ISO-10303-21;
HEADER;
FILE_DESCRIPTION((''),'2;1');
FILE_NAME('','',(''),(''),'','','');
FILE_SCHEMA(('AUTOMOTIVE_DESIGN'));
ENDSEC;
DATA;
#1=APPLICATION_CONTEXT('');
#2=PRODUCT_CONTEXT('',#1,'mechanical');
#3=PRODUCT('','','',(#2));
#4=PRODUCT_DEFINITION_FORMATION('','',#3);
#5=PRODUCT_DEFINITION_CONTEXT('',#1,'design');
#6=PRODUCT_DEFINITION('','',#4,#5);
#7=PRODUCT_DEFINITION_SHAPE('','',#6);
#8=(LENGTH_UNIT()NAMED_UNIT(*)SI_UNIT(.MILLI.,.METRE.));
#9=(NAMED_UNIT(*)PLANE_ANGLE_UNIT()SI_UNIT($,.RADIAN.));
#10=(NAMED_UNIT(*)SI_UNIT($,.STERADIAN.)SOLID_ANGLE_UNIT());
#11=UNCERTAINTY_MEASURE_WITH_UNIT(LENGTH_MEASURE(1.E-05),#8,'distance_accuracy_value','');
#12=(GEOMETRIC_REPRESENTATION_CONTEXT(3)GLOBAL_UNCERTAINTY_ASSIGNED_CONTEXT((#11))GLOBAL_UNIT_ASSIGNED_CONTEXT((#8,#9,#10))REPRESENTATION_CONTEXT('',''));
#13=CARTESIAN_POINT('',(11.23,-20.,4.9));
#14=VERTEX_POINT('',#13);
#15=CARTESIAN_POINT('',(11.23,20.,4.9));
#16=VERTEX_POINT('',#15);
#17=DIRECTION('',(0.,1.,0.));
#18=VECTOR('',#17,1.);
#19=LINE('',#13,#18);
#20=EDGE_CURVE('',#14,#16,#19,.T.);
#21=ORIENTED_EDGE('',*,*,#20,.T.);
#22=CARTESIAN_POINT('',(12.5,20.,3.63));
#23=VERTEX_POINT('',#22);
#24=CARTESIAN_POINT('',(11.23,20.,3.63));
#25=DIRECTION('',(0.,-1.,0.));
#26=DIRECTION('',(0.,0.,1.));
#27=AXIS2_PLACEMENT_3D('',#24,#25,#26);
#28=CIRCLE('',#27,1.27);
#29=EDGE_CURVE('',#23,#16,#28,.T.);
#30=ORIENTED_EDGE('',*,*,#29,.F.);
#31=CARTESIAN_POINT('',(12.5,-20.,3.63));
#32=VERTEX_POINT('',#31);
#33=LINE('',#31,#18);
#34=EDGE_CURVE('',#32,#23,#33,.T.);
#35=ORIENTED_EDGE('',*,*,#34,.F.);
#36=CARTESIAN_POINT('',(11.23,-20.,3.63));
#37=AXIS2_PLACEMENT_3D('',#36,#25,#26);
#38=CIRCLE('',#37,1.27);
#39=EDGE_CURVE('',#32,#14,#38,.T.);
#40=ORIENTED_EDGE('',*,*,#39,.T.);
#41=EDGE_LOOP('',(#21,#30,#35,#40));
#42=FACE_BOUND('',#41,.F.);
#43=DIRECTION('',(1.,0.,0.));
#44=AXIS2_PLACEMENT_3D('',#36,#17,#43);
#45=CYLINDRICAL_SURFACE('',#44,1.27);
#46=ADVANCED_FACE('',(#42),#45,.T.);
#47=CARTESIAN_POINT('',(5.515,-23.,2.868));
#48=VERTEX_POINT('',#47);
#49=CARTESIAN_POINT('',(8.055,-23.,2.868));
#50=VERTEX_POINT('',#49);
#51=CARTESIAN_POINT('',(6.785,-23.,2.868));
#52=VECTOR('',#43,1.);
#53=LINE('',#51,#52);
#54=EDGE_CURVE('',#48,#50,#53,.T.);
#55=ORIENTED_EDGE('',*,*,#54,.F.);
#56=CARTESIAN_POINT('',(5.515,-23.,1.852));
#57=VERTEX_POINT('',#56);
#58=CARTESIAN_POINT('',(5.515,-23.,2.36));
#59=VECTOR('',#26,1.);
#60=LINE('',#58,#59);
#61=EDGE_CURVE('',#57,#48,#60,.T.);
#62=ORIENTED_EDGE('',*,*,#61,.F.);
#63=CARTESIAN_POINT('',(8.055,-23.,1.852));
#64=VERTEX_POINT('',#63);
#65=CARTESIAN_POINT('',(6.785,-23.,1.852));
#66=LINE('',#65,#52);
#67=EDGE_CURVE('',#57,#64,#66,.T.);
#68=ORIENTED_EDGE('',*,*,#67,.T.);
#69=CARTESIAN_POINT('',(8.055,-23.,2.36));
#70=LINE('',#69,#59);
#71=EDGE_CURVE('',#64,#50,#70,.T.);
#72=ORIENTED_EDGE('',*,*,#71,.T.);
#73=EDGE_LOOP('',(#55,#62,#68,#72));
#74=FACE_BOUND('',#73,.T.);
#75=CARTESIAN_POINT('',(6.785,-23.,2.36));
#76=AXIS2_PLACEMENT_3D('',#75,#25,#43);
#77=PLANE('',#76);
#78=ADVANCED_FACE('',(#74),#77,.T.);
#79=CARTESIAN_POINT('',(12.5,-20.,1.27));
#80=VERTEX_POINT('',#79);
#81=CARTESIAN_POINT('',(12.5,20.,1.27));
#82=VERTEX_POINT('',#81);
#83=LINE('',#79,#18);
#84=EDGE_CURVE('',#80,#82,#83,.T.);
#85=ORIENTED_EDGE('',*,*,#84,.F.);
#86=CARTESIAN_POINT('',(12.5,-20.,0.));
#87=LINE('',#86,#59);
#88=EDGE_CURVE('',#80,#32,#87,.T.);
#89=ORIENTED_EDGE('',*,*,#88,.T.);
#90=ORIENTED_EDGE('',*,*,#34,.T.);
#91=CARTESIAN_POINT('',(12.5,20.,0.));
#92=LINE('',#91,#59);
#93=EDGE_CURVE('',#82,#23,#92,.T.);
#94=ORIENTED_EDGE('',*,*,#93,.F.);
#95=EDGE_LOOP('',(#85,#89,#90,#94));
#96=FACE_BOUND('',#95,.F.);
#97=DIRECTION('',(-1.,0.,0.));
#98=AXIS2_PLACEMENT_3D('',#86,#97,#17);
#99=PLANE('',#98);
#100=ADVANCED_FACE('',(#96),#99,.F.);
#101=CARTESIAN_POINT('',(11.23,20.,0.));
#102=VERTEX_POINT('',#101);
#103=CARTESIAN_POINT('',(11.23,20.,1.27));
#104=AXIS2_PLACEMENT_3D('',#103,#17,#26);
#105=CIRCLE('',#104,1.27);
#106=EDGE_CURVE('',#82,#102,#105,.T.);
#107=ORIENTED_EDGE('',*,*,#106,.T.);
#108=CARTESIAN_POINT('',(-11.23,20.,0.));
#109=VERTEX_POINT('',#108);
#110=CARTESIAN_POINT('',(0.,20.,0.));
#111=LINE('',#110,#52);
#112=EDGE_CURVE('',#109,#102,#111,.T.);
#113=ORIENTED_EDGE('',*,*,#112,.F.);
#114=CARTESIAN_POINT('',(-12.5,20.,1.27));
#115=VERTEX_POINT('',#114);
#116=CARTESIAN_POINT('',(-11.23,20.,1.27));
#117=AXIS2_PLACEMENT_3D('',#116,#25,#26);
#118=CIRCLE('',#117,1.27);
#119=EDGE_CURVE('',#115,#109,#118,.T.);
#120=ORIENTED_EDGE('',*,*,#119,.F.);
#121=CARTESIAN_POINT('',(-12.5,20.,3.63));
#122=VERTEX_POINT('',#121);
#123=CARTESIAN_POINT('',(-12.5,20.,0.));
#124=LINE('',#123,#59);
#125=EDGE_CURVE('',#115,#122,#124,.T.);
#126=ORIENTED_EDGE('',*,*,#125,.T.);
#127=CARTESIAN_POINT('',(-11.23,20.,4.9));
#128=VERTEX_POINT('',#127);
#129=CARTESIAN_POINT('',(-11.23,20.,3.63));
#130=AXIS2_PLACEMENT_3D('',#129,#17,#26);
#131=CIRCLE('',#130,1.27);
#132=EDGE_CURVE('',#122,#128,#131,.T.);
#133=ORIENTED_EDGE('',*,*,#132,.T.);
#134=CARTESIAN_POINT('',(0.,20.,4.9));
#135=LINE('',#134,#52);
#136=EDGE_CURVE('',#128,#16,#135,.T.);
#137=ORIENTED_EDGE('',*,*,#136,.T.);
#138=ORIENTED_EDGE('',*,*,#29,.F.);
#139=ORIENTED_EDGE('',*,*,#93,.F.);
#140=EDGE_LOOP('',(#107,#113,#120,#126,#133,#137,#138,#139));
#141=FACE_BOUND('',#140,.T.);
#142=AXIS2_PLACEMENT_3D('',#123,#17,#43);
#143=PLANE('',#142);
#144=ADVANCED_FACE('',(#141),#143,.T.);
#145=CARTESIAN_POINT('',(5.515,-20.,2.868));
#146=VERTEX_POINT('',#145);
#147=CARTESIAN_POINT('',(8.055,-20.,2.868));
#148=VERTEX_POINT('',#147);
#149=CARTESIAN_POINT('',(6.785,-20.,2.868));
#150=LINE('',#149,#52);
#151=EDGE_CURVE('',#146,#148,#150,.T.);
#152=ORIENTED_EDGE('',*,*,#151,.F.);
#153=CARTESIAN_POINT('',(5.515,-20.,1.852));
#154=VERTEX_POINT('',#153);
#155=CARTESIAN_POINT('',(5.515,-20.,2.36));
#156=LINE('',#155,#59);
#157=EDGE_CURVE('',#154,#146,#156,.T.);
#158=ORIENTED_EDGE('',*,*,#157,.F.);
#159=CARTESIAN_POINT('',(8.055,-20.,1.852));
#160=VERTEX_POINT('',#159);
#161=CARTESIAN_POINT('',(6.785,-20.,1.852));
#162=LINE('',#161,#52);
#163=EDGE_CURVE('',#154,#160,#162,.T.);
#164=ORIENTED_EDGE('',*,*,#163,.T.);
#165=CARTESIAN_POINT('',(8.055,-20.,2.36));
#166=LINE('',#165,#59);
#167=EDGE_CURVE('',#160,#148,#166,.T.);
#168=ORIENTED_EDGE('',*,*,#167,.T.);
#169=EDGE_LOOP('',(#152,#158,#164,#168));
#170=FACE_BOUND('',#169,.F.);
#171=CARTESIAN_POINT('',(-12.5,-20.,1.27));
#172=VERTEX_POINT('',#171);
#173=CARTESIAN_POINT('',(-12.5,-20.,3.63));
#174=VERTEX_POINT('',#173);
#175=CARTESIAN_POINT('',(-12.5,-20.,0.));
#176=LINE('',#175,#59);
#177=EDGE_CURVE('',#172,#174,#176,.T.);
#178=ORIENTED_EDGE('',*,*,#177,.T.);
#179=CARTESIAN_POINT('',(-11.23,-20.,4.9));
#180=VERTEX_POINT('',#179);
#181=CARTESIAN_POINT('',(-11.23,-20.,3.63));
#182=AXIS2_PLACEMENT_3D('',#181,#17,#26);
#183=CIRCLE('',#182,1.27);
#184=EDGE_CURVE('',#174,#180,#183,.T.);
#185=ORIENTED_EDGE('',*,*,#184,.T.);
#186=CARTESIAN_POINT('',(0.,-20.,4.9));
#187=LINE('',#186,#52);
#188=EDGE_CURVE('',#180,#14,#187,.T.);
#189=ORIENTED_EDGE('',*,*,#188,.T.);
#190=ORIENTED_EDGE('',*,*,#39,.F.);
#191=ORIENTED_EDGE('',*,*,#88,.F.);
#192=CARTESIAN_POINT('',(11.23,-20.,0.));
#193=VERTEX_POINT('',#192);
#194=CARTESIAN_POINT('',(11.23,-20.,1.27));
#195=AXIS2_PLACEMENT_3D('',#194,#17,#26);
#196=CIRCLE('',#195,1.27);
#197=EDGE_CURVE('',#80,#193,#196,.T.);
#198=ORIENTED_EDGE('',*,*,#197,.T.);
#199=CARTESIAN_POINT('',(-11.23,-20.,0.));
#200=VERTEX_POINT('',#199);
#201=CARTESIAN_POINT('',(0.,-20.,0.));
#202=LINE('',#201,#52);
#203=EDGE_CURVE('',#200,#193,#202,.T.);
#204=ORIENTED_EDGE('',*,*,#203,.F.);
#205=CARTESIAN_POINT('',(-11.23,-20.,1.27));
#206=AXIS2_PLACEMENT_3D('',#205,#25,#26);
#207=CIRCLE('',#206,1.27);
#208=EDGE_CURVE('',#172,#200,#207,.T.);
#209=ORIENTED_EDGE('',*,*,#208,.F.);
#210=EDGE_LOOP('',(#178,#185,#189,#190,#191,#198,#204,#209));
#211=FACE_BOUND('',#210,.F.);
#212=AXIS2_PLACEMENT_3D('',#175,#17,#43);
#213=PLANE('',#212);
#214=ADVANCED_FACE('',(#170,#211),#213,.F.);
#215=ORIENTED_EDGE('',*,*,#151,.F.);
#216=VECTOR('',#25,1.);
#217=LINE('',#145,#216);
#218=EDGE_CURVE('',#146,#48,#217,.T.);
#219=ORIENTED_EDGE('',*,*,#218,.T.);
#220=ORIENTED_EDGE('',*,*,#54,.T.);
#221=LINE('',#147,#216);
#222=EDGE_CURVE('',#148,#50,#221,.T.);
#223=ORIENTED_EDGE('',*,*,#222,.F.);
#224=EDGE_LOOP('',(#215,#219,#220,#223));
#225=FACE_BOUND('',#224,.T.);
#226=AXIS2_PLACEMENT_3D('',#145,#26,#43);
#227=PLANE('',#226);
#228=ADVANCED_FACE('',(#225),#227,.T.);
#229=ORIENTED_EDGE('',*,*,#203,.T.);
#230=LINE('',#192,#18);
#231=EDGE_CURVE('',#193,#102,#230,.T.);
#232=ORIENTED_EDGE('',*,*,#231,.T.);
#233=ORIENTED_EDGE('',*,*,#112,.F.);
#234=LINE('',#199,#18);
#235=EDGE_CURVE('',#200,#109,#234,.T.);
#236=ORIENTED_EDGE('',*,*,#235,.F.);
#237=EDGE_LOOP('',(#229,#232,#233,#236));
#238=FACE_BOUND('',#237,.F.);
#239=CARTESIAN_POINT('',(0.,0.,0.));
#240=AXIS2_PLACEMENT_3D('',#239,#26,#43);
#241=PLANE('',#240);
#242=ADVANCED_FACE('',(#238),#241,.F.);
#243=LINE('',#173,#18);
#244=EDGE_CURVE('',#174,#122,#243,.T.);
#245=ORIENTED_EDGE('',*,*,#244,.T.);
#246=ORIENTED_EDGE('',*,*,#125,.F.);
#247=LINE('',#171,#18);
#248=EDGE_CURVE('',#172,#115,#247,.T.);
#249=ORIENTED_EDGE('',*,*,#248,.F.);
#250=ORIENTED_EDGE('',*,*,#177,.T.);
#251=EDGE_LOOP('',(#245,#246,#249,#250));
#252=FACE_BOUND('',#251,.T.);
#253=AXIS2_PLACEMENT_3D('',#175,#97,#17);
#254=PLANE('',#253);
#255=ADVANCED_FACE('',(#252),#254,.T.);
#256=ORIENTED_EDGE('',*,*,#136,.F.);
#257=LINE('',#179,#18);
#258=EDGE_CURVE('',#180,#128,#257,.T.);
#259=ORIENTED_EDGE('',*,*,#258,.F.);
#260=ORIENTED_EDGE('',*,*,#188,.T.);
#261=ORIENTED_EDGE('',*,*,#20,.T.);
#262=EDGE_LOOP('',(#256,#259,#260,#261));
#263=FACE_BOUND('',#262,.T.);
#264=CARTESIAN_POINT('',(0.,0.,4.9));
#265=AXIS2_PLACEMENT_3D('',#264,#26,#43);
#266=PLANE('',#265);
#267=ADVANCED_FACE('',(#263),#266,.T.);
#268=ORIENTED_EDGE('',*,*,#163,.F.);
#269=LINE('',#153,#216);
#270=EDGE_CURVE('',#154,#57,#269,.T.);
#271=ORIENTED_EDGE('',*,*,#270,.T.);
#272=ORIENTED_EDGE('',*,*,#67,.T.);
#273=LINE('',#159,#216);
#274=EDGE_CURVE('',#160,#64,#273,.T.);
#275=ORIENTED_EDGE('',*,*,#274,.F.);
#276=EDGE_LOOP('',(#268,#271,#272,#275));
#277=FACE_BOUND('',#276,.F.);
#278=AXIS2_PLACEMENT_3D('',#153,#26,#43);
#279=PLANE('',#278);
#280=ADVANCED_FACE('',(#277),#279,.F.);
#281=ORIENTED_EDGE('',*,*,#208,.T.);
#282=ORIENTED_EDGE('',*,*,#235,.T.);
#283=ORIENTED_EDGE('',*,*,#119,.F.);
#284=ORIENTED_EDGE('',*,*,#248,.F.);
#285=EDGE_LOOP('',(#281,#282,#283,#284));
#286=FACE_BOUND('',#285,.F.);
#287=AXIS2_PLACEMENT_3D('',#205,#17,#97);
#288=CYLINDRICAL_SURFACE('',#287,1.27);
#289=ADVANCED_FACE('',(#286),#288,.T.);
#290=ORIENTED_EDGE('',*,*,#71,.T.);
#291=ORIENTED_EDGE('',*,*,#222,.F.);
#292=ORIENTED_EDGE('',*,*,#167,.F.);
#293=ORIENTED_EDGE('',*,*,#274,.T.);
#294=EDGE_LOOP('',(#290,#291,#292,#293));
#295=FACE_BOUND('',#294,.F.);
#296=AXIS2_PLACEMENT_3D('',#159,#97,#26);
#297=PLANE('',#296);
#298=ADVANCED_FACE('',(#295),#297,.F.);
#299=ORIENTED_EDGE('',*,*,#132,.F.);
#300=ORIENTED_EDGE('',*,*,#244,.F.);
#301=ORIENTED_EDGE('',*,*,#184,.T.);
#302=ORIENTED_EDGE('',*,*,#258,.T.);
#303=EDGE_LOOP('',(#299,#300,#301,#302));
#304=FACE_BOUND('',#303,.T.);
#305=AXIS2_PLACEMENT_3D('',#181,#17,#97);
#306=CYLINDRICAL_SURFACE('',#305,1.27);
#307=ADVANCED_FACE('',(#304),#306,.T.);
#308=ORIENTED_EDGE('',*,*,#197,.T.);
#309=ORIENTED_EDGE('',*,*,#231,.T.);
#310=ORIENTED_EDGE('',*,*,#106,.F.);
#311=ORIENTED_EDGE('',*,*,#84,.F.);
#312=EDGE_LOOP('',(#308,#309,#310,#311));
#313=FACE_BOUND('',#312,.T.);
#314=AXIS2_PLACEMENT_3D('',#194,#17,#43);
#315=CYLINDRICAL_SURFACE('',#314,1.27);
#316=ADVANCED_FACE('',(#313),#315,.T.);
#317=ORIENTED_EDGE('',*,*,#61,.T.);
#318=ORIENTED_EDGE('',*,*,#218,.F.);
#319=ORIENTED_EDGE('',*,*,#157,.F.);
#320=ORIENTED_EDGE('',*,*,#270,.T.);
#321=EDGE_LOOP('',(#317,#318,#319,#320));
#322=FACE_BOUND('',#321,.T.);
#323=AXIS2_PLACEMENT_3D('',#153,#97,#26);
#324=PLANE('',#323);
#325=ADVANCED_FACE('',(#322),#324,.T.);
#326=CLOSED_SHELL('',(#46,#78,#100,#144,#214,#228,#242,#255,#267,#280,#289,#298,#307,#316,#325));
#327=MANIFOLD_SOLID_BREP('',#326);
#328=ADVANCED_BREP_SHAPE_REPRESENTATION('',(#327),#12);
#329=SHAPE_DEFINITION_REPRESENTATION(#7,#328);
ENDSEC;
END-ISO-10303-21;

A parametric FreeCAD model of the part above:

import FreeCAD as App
import Part
import Sketcher
from FreeCAD import Vector
Q = App.Units.Quantity


def edges_at(feature, points):
    """Names of the edges that pass closest to the given points."""
    edges = feature.Shape.Edges
    near = lambda p: min(range(len(edges)), key=lambda i: edges[i].distToShape(Part.Vertex(*p))[0])
    return sorted({f"Edge{near(p) + 1}" for p in points})

doc = App.newDocument("Part")
body = doc.addObject("PartDesign::Body", "Body")

sketch1 = doc.addObject("Sketcher::SketchObject", "Sketch")
body.addObject(sketch1)
sketch1.AttachmentSupport = (doc.XY_Plane, [""])
sketch1.MapMode = "FlatFace"
sketch1.addGeometry([
    Part.LineSegment(Vector(-12, 20, 0), Vector(-12, -20, 0)),
    Part.LineSegment(Vector(-12, -20, 0), Vector(12, -20, 0)),
    Part.LineSegment(Vector(12, -20, 0), Vector(12, 20, 0)),
    Part.LineSegment(Vector(12, 20, 0), Vector(-12, 20, 0)),
], False)
sketch1.addConstraint([
    Sketcher.Constraint("Coincident", 0, 2, 1, 1),
    Sketcher.Constraint("Coincident", 1, 2, 2, 1),
    Sketcher.Constraint("Coincident", 2, 2, 3, 1),
    Sketcher.Constraint("Coincident", 3, 2, 0, 1),
    Sketcher.Constraint("Vertical", 0),
    Sketcher.Constraint("Horizontal", 1),
    Sketcher.Constraint("Vertical", 2),
    Sketcher.Constraint("Horizontal", 3),
    Sketcher.Constraint("Symmetric", 0, 2, 2, 2, -1, 1),
    Sketcher.Constraint("DistanceX", 1, 1, 1, 2, Q("25 mm")),
    Sketcher.Constraint("DistanceY", 0, 2, 0, 1, Q("40 mm")),
])
pad1 = doc.addObject("PartDesign::Pad", "Pad")
body.addObject(pad1)
pad1.Profile = sketch1
pad1.Length = 4.9
doc.recompute()

fillet = doc.addObject("PartDesign::Fillet", "Fillet")
body.addObject(fillet)
fillet.Base = (pad1, edges_at(pad1, [
    (-12.5, 0, 4.9),
    (12.5, 0, 4.9),
    (12.5, 0, 0),
    (-12.5, 0, 0),
]))
fillet.Radius = 1.27

sketch2 = doc.addObject("Sketcher::SketchObject", "Sketch001")
body.addObject(sketch2)
sketch2.AttachmentSupport = (doc.XZ_Plane, [""])
sketch2.MapMode = "FlatFace"
sketch2.AttachmentOffset = App.Placement(Vector(0, 0, 20), App.Rotation())
sketch2.addGeometry([
    Part.LineSegment(Vector(5.5, 2.9, 0), Vector(5.5, 1.9, 0)),
    Part.LineSegment(Vector(5.5, 1.9, 0), Vector(8.1, 1.9, 0)),
    Part.LineSegment(Vector(8.1, 1.9, 0), Vector(8.1, 2.9, 0)),
    Part.LineSegment(Vector(8.1, 2.9, 0), Vector(5.5, 2.9, 0)),
], False)
sketch2.addConstraint([
    Sketcher.Constraint("Coincident", 0, 2, 1, 1),
    Sketcher.Constraint("Coincident", 1, 2, 2, 1),
    Sketcher.Constraint("Coincident", 2, 2, 3, 1),
    Sketcher.Constraint("Coincident", 3, 2, 0, 1),
    Sketcher.Constraint("Vertical", 0),
    Sketcher.Constraint("Horizontal", 1),
    Sketcher.Constraint("Vertical", 2),
    Sketcher.Constraint("Horizontal", 3),
    Sketcher.Constraint("DistanceX", 1, 1, 1, 2, Q("2.54 mm")),
    Sketcher.Constraint("DistanceY", 0, 2, 0, 1, Q("1.016 mm")),
    Sketcher.Constraint("DistanceX", -1, 1, 0, 2, Q("5.515 mm")),
    Sketcher.Constraint("DistanceY", -1, 1, 0, 2, Q("1.852 mm")),
])
pad2 = doc.addObject("PartDesign::Pad", "Pad001")
body.addObject(pad2)
pad2.Profile = sketch2
pad2.Length = 3

doc.recompute()
